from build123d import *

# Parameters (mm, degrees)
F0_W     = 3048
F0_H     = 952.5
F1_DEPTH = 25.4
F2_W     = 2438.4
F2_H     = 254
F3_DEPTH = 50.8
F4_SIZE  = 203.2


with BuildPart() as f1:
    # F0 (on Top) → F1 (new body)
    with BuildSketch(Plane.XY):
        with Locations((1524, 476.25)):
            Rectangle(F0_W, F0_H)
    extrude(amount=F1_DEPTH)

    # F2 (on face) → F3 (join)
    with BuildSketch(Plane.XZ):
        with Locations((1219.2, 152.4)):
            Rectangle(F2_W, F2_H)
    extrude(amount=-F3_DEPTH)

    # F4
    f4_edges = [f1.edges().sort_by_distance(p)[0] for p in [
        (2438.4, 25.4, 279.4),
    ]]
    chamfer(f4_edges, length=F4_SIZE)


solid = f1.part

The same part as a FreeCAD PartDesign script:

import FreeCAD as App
import Part
import Sketcher
from FreeCAD import Vector
Q = App.Units.Quantity


def edges_at(feature, points):
    """Names of the edges that pass closest to the given points."""
    edges = feature.Shape.Edges
    near = lambda p: min(range(len(edges)), key=lambda i: edges[i].distToShape(Part.Vertex(*p))[0])
    return sorted({f"Edge{near(p) + 1}" for p in points})

doc = App.newDocument("Part")
params = doc.addObject("Spreadsheet::Sheet", "Params")
for row, (alias, value) in enumerate([
    ("sketch1_width", "120 in"),
    ("sketch1_height", "37.5 in"),
    ("pad1_length", "1 in"),
    ("sketch2_width", "96 in"),
    ("sketch2_height", "10 in"),
    ("pad2_length", "2 in"),
    ("chamfer_size", "8 in"),
], start=1):
    params.set(f"A{row}", alias)
    params.set(f"B{row}", "=" + value)
    params.setAlias(f"B{row}", alias)

body = doc.addObject("PartDesign::Body", "Body")

# Sketch on XY plane
sketch1 = body.newObject("Sketcher::SketchObject", "Sketch")
sketch1.AttachmentSupport = (doc.getObject("XY_Plane"), [""])
sketch1.MapMode = "FlatFace"
sketch1.addGeometry([
    Part.LineSegment(Vector(0, 952, 0), Vector(0, 0, 0)),
    Part.LineSegment(Vector(0, 0, 0), Vector(3048, 0, 0)),
    Part.LineSegment(Vector(3048, 0, 0), Vector(3048, 952, 0)),
    Part.LineSegment(Vector(3048, 952, 0), Vector(0, 952, 0)),
], False)
sketch1.addConstraint([
    Sketcher.Constraint("Coincident", 0, 2, 1, 1),
    Sketcher.Constraint("Coincident", 1, 2, 2, 1),
    Sketcher.Constraint("Coincident", 2, 2, 3, 1),
    Sketcher.Constraint("Coincident", 3, 2, 0, 1),
    Sketcher.Constraint("Vertical", 0),
    Sketcher.Constraint("Horizontal", 1),
    Sketcher.Constraint("Vertical", 2),
    Sketcher.Constraint("Horizontal", 3),
    Sketcher.Constraint("Coincident", 0, 2, -1, 1),
    Sketcher.Constraint("DistanceX", 1, 1, 1, 2, Q("120 in")),
    Sketcher.Constraint("DistanceY", 0, 2, 0, 1, Q("37.5 in")),
])
sketch1.setExpression("Constraints[9]", "Params.sketch1_width")
sketch1.setExpression("Constraints[10]", "Params.sketch1_height")
pad1 = body.newObject("PartDesign::Pad", "Pad")
pad1.Profile = sketch1
pad1.setExpression("Length", "Params.pad1_length")

# Sketch on XZ plane
sketch2 = body.newObject("Sketcher::SketchObject", "Sketch001")
sketch2.AttachmentSupport = (doc.getObject("XZ_Plane"), [""])
sketch2.MapMode = "FlatFace"
sketch2.addGeometry([
    Part.LineSegment(Vector(0, 279, 0), Vector(0, 25, 0)),
    Part.LineSegment(Vector(0, 25, 0), Vector(2438, 25, 0)),
    Part.LineSegment(Vector(2438, 25, 0), Vector(2438, 279, 0)),
    Part.LineSegment(Vector(2438, 279, 0), Vector(0, 279, 0)),
], False)
sketch2.addConstraint([
    Sketcher.Constraint("Coincident", 0, 2, 1, 1),
    Sketcher.Constraint("Coincident", 1, 2, 2, 1),
    Sketcher.Constraint("Coincident", 2, 2, 3, 1),
    Sketcher.Constraint("Coincident", 3, 2, 0, 1),
    Sketcher.Constraint("Vertical", 0),
    Sketcher.Constraint("Horizontal", 1),
    Sketcher.Constraint("Vertical", 2),
    Sketcher.Constraint("Horizontal", 3),
    Sketcher.Constraint("PointOnObject", 0, 2, -2),
    Sketcher.Constraint("DistanceX", 1, 1, 1, 2, Q("96 in")),
    Sketcher.Constraint("DistanceY", 0, 2, 0, 1, Q("10 in")),
    Sketcher.Constraint("DistanceY", -1, 1, 0, 2, Q("1 in")),
])
sketch2.setExpression("Constraints[9]", "Params.sketch2_width")
sketch2.setExpression("Constraints[10]", "Params.sketch2_height")
pad2 = body.newObject("PartDesign::Pad", "Pad001")
pad2.Profile = sketch2
pad2.setExpression("Length", "Params.pad2_length")
pad2.Reversed = True
doc.recompute()

chamfer = body.newObject("PartDesign::Chamfer", "Chamfer")
chamfer.Base = (pad2, edges_at(pad2, [(2438.4, 25.4, 279.4)]))
chamfer.setExpression("Size", "Params.chamfer_size")

doc.recompute()
